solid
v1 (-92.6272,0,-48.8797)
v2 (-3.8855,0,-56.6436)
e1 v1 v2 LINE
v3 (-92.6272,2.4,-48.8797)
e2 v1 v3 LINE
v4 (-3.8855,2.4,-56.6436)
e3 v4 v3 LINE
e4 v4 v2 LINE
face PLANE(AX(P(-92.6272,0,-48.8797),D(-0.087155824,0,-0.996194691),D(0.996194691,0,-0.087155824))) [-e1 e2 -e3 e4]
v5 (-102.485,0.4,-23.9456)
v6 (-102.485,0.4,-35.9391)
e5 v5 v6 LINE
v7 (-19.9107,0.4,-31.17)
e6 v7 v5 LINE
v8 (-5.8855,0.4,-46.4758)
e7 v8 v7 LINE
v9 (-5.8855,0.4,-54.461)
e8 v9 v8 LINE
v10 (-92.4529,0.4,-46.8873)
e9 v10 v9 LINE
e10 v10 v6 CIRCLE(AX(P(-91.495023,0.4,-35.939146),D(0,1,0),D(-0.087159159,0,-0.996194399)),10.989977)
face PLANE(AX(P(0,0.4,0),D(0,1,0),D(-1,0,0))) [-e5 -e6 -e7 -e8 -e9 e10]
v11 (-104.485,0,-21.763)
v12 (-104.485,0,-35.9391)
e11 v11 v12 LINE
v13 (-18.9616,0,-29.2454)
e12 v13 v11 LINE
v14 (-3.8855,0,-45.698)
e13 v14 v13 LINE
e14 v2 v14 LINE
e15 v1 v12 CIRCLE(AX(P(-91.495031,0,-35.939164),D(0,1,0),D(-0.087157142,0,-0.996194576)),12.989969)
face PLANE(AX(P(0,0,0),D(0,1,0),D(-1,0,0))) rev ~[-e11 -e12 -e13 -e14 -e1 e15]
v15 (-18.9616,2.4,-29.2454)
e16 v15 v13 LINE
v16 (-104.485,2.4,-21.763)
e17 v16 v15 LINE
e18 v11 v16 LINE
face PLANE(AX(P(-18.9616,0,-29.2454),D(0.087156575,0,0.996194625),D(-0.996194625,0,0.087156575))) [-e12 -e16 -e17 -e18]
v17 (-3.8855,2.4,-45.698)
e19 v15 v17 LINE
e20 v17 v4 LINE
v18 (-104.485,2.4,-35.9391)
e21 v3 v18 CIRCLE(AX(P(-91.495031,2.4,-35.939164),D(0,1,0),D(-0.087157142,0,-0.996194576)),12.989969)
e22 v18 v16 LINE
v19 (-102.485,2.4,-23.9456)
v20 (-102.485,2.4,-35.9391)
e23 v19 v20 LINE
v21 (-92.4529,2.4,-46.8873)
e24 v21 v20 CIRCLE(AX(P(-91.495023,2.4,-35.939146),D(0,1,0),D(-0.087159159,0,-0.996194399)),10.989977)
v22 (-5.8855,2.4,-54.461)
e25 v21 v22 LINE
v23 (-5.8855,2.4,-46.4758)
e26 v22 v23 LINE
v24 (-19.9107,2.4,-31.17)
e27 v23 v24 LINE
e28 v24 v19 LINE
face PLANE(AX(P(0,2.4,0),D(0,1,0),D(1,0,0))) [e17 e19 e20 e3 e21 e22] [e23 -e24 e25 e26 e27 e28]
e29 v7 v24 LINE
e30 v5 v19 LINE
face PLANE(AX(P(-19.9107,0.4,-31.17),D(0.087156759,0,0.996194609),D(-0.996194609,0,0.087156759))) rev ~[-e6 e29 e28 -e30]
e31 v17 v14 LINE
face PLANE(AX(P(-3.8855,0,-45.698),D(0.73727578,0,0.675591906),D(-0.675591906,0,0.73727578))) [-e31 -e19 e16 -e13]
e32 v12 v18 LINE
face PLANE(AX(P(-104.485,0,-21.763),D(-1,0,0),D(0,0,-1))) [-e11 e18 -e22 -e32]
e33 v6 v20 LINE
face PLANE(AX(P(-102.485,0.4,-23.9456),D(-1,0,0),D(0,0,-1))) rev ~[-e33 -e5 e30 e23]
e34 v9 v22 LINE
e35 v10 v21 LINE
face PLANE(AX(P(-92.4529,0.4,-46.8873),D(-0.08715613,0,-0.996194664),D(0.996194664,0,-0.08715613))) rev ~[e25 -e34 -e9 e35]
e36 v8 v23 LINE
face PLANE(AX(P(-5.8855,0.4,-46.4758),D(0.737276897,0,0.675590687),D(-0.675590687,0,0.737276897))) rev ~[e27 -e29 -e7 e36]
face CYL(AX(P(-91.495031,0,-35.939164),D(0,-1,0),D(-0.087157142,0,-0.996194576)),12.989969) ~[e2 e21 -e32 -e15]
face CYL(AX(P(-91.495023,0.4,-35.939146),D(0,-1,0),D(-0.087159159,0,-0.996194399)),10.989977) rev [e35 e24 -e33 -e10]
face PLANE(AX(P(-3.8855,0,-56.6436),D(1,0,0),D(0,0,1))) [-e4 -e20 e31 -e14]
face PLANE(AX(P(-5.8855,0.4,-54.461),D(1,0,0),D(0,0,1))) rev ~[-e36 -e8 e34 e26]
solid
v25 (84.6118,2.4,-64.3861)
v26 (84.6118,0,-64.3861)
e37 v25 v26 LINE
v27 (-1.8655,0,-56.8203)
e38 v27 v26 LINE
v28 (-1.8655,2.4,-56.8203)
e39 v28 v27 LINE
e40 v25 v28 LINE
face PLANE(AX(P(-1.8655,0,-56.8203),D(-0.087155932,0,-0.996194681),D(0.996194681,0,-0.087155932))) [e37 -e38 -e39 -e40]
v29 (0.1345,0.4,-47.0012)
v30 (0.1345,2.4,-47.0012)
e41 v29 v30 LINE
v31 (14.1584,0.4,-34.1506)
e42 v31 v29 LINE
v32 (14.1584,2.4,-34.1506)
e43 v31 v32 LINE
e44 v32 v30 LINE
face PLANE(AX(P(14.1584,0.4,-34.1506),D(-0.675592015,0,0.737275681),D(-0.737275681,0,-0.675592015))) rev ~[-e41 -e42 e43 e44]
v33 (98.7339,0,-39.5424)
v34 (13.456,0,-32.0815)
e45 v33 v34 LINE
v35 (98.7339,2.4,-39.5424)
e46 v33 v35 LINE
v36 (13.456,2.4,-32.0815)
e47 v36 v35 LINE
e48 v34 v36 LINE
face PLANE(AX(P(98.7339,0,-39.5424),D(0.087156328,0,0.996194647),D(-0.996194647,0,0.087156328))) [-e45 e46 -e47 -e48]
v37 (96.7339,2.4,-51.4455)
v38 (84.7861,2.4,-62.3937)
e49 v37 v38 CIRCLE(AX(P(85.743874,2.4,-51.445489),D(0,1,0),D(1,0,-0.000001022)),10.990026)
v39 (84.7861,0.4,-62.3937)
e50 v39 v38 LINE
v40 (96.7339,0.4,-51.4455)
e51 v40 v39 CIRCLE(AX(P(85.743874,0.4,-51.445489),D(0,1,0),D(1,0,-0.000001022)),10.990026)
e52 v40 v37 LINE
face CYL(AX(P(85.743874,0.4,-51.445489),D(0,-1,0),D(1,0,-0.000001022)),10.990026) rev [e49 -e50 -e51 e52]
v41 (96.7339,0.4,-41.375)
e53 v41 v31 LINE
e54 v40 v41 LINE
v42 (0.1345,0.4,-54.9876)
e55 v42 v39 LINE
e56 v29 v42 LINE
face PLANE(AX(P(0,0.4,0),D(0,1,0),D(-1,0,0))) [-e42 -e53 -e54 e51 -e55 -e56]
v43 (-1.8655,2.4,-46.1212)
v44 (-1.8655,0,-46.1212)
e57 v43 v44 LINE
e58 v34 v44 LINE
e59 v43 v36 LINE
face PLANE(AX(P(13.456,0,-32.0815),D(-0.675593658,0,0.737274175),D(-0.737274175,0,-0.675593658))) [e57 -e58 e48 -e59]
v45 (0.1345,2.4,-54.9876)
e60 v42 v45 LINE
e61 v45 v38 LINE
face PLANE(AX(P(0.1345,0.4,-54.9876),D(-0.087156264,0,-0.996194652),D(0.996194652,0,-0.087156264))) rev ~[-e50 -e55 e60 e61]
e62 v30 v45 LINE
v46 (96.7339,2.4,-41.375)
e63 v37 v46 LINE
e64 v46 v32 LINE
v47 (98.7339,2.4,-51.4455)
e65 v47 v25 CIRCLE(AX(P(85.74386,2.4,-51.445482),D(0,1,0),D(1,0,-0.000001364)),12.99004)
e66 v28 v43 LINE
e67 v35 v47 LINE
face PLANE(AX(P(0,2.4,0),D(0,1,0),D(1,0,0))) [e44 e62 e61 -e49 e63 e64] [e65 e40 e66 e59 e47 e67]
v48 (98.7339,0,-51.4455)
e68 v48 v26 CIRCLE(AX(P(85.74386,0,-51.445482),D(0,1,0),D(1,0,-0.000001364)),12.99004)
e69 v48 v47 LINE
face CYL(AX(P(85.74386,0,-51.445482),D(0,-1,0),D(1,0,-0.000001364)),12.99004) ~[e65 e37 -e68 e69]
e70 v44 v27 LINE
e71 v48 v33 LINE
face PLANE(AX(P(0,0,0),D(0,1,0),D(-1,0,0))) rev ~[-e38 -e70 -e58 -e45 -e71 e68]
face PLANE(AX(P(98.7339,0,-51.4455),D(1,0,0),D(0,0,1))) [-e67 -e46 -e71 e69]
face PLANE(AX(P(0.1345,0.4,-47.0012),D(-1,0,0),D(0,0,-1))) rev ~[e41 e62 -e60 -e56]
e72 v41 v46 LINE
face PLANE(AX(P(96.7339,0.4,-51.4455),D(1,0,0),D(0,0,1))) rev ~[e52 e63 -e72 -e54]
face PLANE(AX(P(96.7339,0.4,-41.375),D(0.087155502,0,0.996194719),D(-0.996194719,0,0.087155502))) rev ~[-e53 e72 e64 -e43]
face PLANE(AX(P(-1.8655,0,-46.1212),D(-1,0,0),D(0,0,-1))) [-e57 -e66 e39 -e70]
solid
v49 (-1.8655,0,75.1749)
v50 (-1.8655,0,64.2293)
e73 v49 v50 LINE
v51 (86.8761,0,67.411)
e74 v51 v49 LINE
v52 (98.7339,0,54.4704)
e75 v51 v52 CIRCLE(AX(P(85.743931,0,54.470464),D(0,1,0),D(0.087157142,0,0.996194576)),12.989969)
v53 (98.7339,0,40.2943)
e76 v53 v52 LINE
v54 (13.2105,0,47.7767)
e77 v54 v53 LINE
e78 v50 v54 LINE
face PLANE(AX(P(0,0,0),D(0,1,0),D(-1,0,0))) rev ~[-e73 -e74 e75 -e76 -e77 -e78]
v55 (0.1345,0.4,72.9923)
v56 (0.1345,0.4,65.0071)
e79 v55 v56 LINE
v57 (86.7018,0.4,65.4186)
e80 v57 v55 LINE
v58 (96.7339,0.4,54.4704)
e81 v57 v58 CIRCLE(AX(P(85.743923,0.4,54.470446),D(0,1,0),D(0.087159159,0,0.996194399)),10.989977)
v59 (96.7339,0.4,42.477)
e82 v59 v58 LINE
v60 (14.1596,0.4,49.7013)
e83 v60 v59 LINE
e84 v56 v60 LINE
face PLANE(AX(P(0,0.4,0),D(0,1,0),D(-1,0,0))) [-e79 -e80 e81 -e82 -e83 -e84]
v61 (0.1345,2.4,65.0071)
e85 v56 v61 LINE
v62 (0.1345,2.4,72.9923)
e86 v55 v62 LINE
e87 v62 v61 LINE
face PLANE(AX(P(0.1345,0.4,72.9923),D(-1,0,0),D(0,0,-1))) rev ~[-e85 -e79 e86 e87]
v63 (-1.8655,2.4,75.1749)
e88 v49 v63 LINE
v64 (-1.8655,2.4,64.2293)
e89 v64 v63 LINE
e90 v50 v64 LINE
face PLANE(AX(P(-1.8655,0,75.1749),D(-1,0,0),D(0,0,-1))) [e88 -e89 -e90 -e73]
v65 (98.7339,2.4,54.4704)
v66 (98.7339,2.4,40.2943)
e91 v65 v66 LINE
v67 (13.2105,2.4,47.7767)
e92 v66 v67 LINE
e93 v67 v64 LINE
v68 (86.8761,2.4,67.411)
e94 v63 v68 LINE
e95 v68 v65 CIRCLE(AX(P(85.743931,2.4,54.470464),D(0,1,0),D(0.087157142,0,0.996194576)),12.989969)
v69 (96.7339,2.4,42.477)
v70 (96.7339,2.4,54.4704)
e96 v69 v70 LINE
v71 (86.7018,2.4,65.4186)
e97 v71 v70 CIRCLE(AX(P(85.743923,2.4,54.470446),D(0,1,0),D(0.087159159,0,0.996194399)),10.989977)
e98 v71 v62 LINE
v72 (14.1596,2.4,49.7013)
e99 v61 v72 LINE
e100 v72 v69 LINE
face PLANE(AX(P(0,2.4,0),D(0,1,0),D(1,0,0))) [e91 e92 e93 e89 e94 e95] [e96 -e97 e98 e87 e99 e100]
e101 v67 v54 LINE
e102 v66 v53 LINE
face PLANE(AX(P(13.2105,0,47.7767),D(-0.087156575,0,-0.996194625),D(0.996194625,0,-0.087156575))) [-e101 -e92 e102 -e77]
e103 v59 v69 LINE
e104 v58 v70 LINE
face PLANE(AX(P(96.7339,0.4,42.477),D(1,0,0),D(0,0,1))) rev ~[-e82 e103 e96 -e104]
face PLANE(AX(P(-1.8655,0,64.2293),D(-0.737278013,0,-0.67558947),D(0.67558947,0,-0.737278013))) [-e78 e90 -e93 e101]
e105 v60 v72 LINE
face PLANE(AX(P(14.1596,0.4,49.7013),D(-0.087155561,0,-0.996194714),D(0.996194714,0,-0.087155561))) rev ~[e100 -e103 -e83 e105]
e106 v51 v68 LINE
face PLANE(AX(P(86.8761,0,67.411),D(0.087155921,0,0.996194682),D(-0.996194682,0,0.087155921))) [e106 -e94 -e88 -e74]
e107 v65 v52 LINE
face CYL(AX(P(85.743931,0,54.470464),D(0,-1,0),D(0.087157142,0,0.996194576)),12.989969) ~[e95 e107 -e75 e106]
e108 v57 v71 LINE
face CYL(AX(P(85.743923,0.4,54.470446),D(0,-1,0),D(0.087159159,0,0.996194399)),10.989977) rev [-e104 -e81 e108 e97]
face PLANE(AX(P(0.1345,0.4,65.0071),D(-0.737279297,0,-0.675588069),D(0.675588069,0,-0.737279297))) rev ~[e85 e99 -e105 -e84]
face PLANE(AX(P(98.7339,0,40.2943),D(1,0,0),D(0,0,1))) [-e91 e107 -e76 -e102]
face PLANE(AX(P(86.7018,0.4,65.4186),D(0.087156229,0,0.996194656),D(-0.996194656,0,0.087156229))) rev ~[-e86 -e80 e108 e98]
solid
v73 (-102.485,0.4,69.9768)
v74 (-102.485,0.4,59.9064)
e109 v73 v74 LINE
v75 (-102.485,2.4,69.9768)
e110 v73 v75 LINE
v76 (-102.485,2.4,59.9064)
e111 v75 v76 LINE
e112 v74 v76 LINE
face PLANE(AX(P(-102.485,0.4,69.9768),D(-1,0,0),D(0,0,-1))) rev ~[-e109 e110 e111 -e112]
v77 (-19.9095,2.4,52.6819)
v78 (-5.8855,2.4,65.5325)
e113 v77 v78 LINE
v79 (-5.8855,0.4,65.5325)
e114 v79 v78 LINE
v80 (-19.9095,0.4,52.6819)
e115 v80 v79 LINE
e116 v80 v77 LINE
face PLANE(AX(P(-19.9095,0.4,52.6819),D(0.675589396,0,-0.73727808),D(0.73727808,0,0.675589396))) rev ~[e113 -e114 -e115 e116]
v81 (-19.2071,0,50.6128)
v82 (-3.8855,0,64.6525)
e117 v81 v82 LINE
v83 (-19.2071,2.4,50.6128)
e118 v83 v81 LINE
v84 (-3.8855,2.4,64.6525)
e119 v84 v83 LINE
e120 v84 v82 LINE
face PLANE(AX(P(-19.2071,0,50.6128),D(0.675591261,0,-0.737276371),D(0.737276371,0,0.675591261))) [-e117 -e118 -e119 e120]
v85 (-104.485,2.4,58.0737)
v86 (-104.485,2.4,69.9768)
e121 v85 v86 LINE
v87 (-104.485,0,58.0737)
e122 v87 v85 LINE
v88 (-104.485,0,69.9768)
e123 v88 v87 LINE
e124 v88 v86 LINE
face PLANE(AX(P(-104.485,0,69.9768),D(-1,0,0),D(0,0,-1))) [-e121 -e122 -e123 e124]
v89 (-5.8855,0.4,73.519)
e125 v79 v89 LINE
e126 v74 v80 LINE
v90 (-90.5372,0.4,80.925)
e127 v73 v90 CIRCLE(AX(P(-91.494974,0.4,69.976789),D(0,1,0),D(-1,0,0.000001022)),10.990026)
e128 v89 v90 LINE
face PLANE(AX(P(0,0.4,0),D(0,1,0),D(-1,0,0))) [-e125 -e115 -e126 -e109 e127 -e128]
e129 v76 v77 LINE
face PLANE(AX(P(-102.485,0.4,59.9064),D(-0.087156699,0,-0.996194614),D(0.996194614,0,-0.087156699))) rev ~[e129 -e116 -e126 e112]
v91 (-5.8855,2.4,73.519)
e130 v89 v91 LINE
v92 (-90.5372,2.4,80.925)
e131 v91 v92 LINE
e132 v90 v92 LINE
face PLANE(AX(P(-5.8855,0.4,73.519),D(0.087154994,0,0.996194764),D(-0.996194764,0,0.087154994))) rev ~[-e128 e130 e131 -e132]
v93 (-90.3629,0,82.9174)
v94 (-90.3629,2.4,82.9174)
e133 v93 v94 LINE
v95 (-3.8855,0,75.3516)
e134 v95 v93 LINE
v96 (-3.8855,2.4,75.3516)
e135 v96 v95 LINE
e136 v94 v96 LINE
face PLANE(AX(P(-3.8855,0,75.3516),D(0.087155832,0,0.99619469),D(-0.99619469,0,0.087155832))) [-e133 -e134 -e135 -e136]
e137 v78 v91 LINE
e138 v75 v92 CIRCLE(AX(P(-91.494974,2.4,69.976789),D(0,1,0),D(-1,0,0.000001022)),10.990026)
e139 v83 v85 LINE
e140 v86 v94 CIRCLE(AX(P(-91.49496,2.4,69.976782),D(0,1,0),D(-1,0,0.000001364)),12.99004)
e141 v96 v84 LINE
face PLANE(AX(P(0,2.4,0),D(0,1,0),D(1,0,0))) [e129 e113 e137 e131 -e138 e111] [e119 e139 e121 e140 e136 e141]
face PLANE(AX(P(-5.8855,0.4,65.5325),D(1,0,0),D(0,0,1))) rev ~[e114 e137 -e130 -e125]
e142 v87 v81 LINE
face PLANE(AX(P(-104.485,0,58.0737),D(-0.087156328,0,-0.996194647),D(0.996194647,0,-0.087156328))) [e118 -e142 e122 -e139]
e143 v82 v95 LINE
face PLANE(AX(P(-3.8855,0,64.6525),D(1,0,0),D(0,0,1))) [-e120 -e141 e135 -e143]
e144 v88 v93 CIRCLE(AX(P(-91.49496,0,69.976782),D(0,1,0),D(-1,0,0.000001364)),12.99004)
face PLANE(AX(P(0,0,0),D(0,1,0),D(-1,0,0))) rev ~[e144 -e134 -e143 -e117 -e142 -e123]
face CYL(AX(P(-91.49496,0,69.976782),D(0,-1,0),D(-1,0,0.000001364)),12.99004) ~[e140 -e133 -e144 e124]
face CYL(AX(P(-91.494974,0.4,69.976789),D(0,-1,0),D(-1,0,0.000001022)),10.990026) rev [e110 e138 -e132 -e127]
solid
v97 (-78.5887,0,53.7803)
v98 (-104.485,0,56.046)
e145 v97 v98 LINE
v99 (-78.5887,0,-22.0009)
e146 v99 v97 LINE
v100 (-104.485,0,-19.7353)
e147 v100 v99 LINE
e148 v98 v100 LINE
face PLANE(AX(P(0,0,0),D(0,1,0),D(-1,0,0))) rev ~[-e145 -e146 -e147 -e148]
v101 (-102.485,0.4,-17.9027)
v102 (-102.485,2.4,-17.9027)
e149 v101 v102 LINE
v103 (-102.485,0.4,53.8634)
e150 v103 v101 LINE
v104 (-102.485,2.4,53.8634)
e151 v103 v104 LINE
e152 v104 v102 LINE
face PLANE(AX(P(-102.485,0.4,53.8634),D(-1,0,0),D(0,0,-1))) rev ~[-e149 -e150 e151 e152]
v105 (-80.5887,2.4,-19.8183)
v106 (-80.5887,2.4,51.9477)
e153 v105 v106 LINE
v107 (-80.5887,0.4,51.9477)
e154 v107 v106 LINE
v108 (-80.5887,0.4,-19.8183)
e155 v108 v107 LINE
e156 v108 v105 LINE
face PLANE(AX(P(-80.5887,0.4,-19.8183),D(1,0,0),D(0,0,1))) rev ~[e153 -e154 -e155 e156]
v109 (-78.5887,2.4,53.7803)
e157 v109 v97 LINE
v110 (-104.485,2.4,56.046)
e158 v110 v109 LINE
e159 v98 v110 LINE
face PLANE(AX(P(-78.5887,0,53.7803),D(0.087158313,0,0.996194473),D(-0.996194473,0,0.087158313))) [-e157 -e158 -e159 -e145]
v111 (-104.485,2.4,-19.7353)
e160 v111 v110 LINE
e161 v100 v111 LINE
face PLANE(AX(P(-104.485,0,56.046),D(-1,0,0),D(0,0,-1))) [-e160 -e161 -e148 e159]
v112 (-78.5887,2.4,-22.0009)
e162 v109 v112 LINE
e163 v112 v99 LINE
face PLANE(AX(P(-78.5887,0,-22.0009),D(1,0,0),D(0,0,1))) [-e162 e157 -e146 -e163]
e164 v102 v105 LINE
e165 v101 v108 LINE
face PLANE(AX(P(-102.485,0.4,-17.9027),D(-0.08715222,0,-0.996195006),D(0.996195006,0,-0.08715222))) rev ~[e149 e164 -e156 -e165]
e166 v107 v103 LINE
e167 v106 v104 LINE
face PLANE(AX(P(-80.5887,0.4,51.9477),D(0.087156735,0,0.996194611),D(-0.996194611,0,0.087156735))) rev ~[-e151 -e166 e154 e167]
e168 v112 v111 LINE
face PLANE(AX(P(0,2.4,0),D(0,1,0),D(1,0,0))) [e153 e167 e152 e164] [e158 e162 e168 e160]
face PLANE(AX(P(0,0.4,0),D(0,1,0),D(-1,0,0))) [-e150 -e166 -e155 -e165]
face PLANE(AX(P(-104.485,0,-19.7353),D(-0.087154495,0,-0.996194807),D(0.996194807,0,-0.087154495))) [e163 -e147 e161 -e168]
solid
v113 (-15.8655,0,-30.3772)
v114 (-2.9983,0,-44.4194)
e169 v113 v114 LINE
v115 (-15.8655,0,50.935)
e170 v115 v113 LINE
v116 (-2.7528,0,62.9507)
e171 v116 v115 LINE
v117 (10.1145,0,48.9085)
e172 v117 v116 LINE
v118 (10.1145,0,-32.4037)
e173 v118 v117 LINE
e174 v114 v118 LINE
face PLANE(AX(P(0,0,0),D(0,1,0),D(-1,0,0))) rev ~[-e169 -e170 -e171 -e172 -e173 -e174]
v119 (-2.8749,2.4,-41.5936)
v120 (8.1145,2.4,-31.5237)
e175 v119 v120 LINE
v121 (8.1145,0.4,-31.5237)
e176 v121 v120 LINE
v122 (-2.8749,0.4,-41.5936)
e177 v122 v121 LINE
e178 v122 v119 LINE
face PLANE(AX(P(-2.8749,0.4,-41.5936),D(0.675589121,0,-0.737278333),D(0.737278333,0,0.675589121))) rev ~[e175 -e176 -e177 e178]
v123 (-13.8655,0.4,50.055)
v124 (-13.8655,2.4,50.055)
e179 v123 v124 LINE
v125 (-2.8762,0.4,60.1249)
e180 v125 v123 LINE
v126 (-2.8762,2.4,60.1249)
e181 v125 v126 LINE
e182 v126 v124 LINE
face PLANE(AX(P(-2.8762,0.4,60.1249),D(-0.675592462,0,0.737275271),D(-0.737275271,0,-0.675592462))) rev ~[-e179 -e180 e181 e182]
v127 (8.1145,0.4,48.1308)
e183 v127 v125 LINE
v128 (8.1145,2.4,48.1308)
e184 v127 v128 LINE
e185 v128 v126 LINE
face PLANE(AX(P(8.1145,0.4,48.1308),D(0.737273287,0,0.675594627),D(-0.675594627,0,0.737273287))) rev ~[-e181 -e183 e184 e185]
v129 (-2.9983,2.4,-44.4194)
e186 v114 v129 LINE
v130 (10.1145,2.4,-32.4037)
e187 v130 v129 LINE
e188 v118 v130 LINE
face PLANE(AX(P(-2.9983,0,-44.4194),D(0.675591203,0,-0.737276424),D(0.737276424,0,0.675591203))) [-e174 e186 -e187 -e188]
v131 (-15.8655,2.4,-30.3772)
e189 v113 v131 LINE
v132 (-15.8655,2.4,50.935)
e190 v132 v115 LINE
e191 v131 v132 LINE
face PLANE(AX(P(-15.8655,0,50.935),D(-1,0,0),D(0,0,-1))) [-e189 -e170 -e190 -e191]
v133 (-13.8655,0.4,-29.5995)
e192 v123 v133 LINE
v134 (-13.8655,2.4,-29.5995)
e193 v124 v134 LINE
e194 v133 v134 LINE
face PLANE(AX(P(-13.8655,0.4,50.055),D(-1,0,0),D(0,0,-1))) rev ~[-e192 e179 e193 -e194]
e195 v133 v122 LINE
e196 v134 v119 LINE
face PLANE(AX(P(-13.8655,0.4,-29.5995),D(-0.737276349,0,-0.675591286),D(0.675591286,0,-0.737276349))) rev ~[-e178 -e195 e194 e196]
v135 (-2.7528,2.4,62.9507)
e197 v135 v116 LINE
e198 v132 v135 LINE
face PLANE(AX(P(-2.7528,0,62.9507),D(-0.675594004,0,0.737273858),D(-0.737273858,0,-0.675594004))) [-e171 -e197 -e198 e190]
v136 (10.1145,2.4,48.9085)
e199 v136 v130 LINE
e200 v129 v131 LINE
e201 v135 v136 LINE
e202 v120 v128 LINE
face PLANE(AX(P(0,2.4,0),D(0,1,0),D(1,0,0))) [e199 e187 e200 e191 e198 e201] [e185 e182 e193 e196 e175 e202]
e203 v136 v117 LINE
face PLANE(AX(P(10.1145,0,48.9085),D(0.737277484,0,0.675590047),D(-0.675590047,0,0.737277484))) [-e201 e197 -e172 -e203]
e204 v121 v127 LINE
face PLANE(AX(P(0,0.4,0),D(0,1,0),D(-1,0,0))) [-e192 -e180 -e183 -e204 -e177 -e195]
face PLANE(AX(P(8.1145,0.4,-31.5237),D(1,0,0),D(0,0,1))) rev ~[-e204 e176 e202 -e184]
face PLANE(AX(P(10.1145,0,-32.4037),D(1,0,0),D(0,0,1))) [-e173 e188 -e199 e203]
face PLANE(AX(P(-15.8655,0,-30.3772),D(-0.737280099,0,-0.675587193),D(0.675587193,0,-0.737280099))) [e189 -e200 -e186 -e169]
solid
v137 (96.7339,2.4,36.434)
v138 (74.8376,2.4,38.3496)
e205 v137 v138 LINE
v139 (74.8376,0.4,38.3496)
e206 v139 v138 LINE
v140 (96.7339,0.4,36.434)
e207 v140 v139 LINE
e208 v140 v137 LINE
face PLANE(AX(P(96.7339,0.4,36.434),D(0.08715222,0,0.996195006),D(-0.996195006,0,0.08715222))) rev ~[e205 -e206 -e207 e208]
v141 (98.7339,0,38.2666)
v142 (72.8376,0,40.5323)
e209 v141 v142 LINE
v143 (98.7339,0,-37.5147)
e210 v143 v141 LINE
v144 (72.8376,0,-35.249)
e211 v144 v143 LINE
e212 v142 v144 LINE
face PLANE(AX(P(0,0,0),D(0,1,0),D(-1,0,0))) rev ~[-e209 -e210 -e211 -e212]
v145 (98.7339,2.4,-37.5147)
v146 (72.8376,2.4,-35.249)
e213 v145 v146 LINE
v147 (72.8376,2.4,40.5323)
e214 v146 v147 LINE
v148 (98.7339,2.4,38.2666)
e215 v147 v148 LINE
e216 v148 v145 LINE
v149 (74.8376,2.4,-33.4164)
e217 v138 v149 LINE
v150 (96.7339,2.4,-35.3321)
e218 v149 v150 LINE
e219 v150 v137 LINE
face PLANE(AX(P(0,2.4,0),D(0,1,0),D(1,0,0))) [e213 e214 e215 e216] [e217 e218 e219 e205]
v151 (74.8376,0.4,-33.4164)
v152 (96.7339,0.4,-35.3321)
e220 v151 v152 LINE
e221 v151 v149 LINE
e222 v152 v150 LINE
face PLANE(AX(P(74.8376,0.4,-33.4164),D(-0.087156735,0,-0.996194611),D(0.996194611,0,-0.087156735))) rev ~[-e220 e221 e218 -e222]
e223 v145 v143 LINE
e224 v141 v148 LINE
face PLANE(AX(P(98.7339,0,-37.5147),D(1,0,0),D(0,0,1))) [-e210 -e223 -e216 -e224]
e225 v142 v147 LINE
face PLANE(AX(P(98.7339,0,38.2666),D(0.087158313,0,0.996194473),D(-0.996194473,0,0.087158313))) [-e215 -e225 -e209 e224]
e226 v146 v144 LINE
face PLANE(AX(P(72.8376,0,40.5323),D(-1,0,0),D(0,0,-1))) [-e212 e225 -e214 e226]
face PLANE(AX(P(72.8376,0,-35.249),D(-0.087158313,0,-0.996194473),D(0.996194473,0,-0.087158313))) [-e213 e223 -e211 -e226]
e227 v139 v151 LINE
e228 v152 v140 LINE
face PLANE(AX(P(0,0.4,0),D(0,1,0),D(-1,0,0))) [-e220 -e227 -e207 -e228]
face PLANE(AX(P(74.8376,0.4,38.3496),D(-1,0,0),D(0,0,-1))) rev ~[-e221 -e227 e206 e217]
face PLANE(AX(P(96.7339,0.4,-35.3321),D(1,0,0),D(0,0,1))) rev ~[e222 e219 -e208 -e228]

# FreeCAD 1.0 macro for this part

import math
import FreeCAD as App
import Part
import Sketcher

V = App.Vector
Q = App.Units.Quantity

doc = App.newDocument("Part")
body = doc.addObject("PartDesign::Body", "Body")
body.AllowCompound = True

# Sketch on XZ plane
sketch1 = body.newObject("Sketcher::SketchObject", "Sketch")
sketch1.AttachmentSupport = (doc.getObject("XZ_Plane"), [""])
sketch1.MapMode = "FlatFace"
sketch1.addGeometry([
    Part.LineSegment(V(-79, -22, 0), V(-104, -20, 0)),  # 0
    Part.LineSegment(V(-104, -20, 0), V(-104, 56, 0)),  # 1
    Part.LineSegment(V(-104, 56, 0), V(-79, 54, 0)),  # 2
    Part.LineSegment(V(-79, 54, 0), V(-79, -22, 0)),  # 3
    Part.LineSegment(V(-4, -57, 0), V(-93, -49, 0)),  # 4
    Part.ArcOfCircle(Part.Circle(V(-91, -36, 0), V(0, 0, 1), 13), math.radians(180), math.radians(265)),  # 5
    Part.LineSegment(V(-104, -36, 0), V(-104, -22, 0)),  # 6
    Part.LineSegment(V(-104, -22, 0), V(-19, -29, 0)),  # 7
    Part.LineSegment(V(-19, -29, 0), V(-4, -46, 0)),  # 8
    Part.LineSegment(V(-4, -46, 0), V(-4, -57, 0)),  # 9
    Part.LineSegment(V(-2, -46, 0), V(13, -32, 0)),  # 10
    Part.LineSegment(V(13, -32, 0), V(99, -40, 0)),  # 11
    Part.LineSegment(V(99, -40, 0), V(99, -51, 0)),  # 12
    Part.ArcOfCircle(Part.Circle(V(86, -51, 0), V(0, 0, 1), 13), math.radians(-95), math.radians(0)),  # 13
    Part.LineSegment(V(85, -64, 0), V(-2, -57, 0)),  # 14
    Part.LineSegment(V(-2, -57, 0), V(-2, -46, 0)),  # 15
    Part.LineSegment(V(10, 49, 0), V(10, -32, 0)),  # 16
    Part.LineSegment(V(10, -32, 0), V(-3, -44, 0)),  # 17
    Part.LineSegment(V(-3, -44, 0), V(-16, -30, 0)),  # 18
    Part.LineSegment(V(-16, -30, 0), V(-16, 51, 0)),  # 19
    Part.LineSegment(V(-16, 51, 0), V(-3, 63, 0)),  # 20
    Part.LineSegment(V(-3, 63, 0), V(10, 49, 0)),  # 21
    Part.LineSegment(V(-19, 51, 0), V(-104, 58, 0)),  # 22
    Part.LineSegment(V(-104, 58, 0), V(-104, 70, 0)),  # 23
    Part.ArcOfCircle(Part.Circle(V(-91, 70, 0), V(0, 0, 1), 13), math.radians(85), math.radians(180)),  # 24
    Part.LineSegment(V(-90, 83, 0), V(-4, 75, 0)),  # 25
    Part.LineSegment(V(-4, 75, 0), V(-4, 65, 0)),  # 26
    Part.LineSegment(V(-4, 65, 0), V(-19, 51, 0)),  # 27
    Part.LineSegment(V(13, 48, 0), V(-2, 64, 0)),  # 28
    Part.LineSegment(V(-2, 64, 0), V(-2, 75, 0)),  # 29
    Part.LineSegment(V(-2, 75, 0), V(87, 67, 0)),  # 30
    Part.ArcOfCircle(Part.Circle(V(86, 54, 0), V(0, 0, 1), 13), math.radians(0), math.radians(85)),  # 31
    Part.LineSegment(V(99, 54, 0), V(99, 40, 0)),  # 32
    Part.LineSegment(V(99, 40, 0), V(13, 48, 0)),  # 33
    Part.LineSegment(V(73, -35, 0), V(73, 41, 0)),  # 34
    Part.LineSegment(V(73, 41, 0), V(99, 38, 0)),  # 35
    Part.LineSegment(V(99, 38, 0), V(99, -38, 0)),  # 36
    Part.LineSegment(V(99, -38, 0), V(73, -35, 0)),  # 37
], False)
sketch1.addConstraint([
    Sketcher.Constraint("Coincident", 0, 2, 1, 1),
    Sketcher.Constraint("Coincident", 1, 2, 2, 1),
    Sketcher.Constraint("Coincident", 2, 2, 3, 1),
    Sketcher.Constraint("Coincident", 3, 2, 0, 1),
    Sketcher.Constraint("Tangent", 4, 2, 5, 2),
    Sketcher.Constraint("Tangent", 5, 1, 6, 1),
    Sketcher.Constraint("Coincident", 6, 2, 7, 1),
    Sketcher.Constraint("Coincident", 7, 2, 8, 1),
    Sketcher.Constraint("Coincident", 8, 2, 9, 1),
    Sketcher.Constraint("Coincident", 9, 2, 4, 1),
    Sketcher.Constraint("Coincident", 10, 2, 11, 1),
    Sketcher.Constraint("Coincident", 11, 2, 12, 1),
    Sketcher.Constraint("Tangent", 12, 2, 13, 2),
    Sketcher.Constraint("Tangent", 13, 1, 14, 1),
    Sketcher.Constraint("Coincident", 14, 2, 15, 1),
    Sketcher.Constraint("Coincident", 15, 2, 10, 1),
    Sketcher.Constraint("Coincident", 16, 2, 17, 1),
    Sketcher.Constraint("Coincident", 17, 2, 18, 1),
    Sketcher.Constraint("Coincident", 18, 2, 19, 1),
    Sketcher.Constraint("Coincident", 19, 2, 20, 1),
    Sketcher.Constraint("Coincident", 20, 2, 21, 1),
    Sketcher.Constraint("Coincident", 21, 2, 16, 1),
    Sketcher.Constraint("Coincident", 22, 2, 23, 1),
    Sketcher.Constraint("Tangent", 23, 2, 24, 2),
    Sketcher.Constraint("Tangent", 24, 1, 25, 1),
    Sketcher.Constraint("Coincident", 25, 2, 26, 1),
    Sketcher.Constraint("Coincident", 26, 2, 27, 1),
    Sketcher.Constraint("Coincident", 27, 2, 22, 1),
    Sketcher.Constraint("Coincident", 28, 2, 29, 1),
    Sketcher.Constraint("Coincident", 29, 2, 30, 1),
    Sketcher.Constraint("Tangent", 30, 2, 31, 2),
    Sketcher.Constraint("Tangent", 31, 1, 32, 1),
    Sketcher.Constraint("Coincident", 32, 2, 33, 1),
    Sketcher.Constraint("Coincident", 33, 2, 28, 1),
    Sketcher.Constraint("Coincident", 34, 2, 35, 1),
    Sketcher.Constraint("Coincident", 35, 2, 36, 1),
    Sketcher.Constraint("Coincident", 36, 2, 37, 1),
    Sketcher.Constraint("Coincident", 37, 2, 34, 1),
    Sketcher.Constraint("Vertical", 1),
    Sketcher.Constraint("Vertical", 3),
    Sketcher.Constraint("Vertical", 6),
    Sketcher.Constraint("Vertical", 9),
    Sketcher.Constraint("Vertical", 12),
    Sketcher.Constraint("Vertical", 15),
    Sketcher.Constraint("Vertical", 16),
    Sketcher.Constraint("Vertical", 19),
    Sketcher.Constraint("Vertical", 23),
    Sketcher.Constraint("Vertical", 26),
    Sketcher.Constraint("Vertical", 29),
    Sketcher.Constraint("Vertical", 32),
    Sketcher.Constraint("Vertical", 34),
    Sketcher.Constraint("Vertical", 36),
    Sketcher.Constraint("Equal", 5, 13),
    Sketcher.Constraint("Equal", 13, 24),
    Sketcher.Constraint("Equal", 24, 31),
    Sketcher.Constraint("Parallel", 0, 2),
    Sketcher.Constraint("Parallel", 2, 4),
    Sketcher.Constraint("Parallel", 4, 7),
    Sketcher.Constraint("Perpendicular", 8, 10),
    Sketcher.Constraint("Parallel", 7, 11),
    Sketcher.Constraint("Parallel", 11, 14),
    Sketcher.Constraint("Parallel", 10, 17),
    Sketcher.Constraint("Perpendicular", 17, 18),
    Sketcher.Constraint("Perpendicular", 18, 20),
    Sketcher.Constraint("Perpendicular", 20, 21),
    Sketcher.Constraint("Parallel", 14, 22),
    Sketcher.Constraint("Parallel", 22, 25),
    Sketcher.Constraint("Perpendicular", 21, 27),
    Sketcher.Constraint("Perpendicular", 27, 28),
    Sketcher.Constraint("Parallel", 25, 30),
    Sketcher.Constraint("Parallel", 30, 33),
    Sketcher.Constraint("Parallel", 33, 35),
    Sketcher.Constraint("Parallel", 35, 37),
    Sketcher.Constraint("Vertical", 5, 3, 24, 3),
    Sketcher.Constraint("Vertical", 13, 3, 31, 3),
    Sketcher.Constraint("Vertical", 1, 2, 5, 1),
    Sketcher.Constraint("Vertical", 9, 2, 25, 2),
    Sketcher.Constraint("Vertical", 15, 2, 28, 2),
    Sketcher.Constraint("Vertical", 32, 2, 35, 2),
    Sketcher.Constraint("Equal", 16, 19),
    Sketcher.Constraint("Equal", 12, 23),
    Sketcher.Constraint("Equal", 15, 26),
    Sketcher.Constraint("Equal", 9, 29),
    Sketcher.Constraint("Equal", 6, 32),
    Sketcher.Constraint("Equal", 3, 34),
    Sketcher.Constraint("Equal", 11, 22),
    Sketcher.Constraint("Equal", 2, 35),
    Sketcher.Constraint("Angle", 0, Q("175 deg")),
    Sketcher.Constraint("Radius", 5, Q("12.99 mm")),
    Sketcher.Constraint("Angle", 8, Q("-47.4999 deg")),
    Sketcher.Constraint("DistanceX", 8, 2, 16, 2, Q("14 mm")),
    Sketcher.Constraint("DistanceX", 18, 2, 15, 2, Q("14 mm")),
    Sketcher.Constraint("Distance", 7, Q("85.85 mm")),
    Sketcher.Constraint("DistanceY", 6, 1, 6, 2, Q("14.176 mm")),
    Sketcher.Constraint("DistanceY", 12, 2, 12, 1, Q("11.903 mm")),
    Sketcher.Constraint("DistanceY", 15, 1, 15, 2, Q("10.699 mm")),
    Sketcher.Constraint("DistanceY", 2, 2, 31, 3, Q("0.69 mm")),
    Sketcher.Constraint("DistanceY", 4, 2, 2, 2, Q("102.66 mm")),
    Sketcher.Constraint("DistanceX", 9, 2, 14, 2, Q("2.02 mm")),
    Sketcher.Constraint("DistanceY", 9, 2, 16, 2, Q("24.24 mm")),
    Sketcher.Constraint("DistanceY", 10, 2, 21, 2, Q("80.99 mm")),
    Sketcher.Constraint("DistanceY", 19, 2, 29, 2, Q("24.24 mm")),
    Sketcher.Constraint("Distance", 18, Q("19.046 mm")),
    Sketcher.Constraint("DistanceY", 1, 1, 1, 2, Q("75.7813 mm")),
    Sketcher.Constraint("DistanceY", 9, 2, 9, 1, Q("10.9456 mm")),
    Sketcher.Constraint("DistanceX", 5, 3, -1, 1, Q("91.495 mm")),
    Sketcher.Constraint("DistanceY", 5, 3, -1, 1, Q("35.939 mm")),
    Sketcher.Constraint("DistanceY", -1, 1, 1, 2, Q("56.046 mm")),
    Sketcher.Constraint("DistanceY", 37, 2, -1, 1, Q("35.249 mm")),
    Sketcher.Constraint("DistanceY", 5, 3, 24, 3, Q("105.916 mm")),
])
pad1 = body.newObject("PartDesign::Pad", "Pad")
pad1.Profile = sketch1
pad1.Length = 0.4
pad1.Reversed = True

# Sketch on XZ plane
sketch2 = body.newObject("Sketcher::SketchObject", "Sketch001")
sketch2.AttachmentSupport = (doc.getObject("XZ_Plane"), [""])
sketch2.MapMode = "FlatFace"
sketch2.AttachmentOffset = App.Placement(V(0, 0, -0.4), App.Rotation())
sketch2.addGeometry([
    Part.ArcOfCircle(Part.Circle(V(-91, 70, 0), V(0, 0, 1), 13), math.radians(85), math.radians(180)),  # 0
    Part.LineSegment(V(-90, 83, 0), V(-4, 75, 0)),  # 1
    Part.LineSegment(V(-4, 75, 0), V(-4, 65, 0)),  # 2
    Part.LineSegment(V(-4, 65, 0), V(-19, 51, 0)),  # 3
    Part.LineSegment(V(-19, 51, 0), V(-104, 58, 0)),  # 4
    Part.LineSegment(V(-104, 58, 0), V(-104, 70, 0)),  # 5
    Part.LineSegment(V(-102, 70, 0), V(-102, 60, 0)),  # 6
    Part.LineSegment(V(-102, 60, 0), V(-20, 53, 0)),  # 7
    Part.LineSegment(V(-20, 53, 0), V(-6, 66, 0)),  # 8
    Part.LineSegment(V(-6, 66, 0), V(-6, 74, 0)),  # 9
    Part.LineSegment(V(-6, 74, 0), V(-91, 81, 0)),  # 10
    Part.ArcOfCircle(Part.Circle(V(-91, 70, 0), V(0, 0, 1), 11), math.radians(85), math.radians(180)),  # 11
    Part.LineSegment(V(-104, -20, 0), V(-104, 56, 0)),  # 12
    Part.LineSegment(V(-104, 56, 0), V(-79, 54, 0)),  # 13
    Part.LineSegment(V(-79, 54, 0), V(-79, -22, 0)),  # 14
    Part.LineSegment(V(-79, -22, 0), V(-104, -20, 0)),  # 15
    Part.LineSegment(V(-102, -18, 0), V(-81, -20, 0)),  # 16
    Part.LineSegment(V(-81, -20, 0), V(-81, 52, 0)),  # 17
    Part.LineSegment(V(-81, 52, 0), V(-102, 54, 0)),  # 18
    Part.LineSegment(V(-102, 54, 0), V(-102, -18, 0)),  # 19
    Part.LineSegment(V(-4, -57, 0), V(-93, -49, 0)),  # 20
    Part.ArcOfCircle(Part.Circle(V(-91, -36, 0), V(0, 0, 1), 13), math.radians(180), math.radians(265)),  # 21
    Part.LineSegment(V(-104, -36, 0), V(-104, -22, 0)),  # 22
    Part.LineSegment(V(-104, -22, 0), V(-19, -29, 0)),  # 23
    Part.LineSegment(V(-19, -29, 0), V(-4, -46, 0)),  # 24
    Part.LineSegment(V(-4, -46, 0), V(-4, -57, 0)),  # 25
    Part.LineSegment(V(-6, -46, 0), V(-20, -31, 0)),  # 26
    Part.LineSegment(V(-20, -31, 0), V(-102, -24, 0)),  # 27
    Part.LineSegment(V(-102, -24, 0), V(-102, -36, 0)),  # 28
    Part.ArcOfCircle(Part.Circle(V(-91, -36, 0), V(0, 0, 1), 11), math.radians(180), math.radians(265)),  # 29
    Part.LineSegment(V(-92, -47, 0), V(-6, -54, 0)),  # 30
    Part.LineSegment(V(-6, -54, 0), V(-6, -46, 0)),  # 31
    Part.LineSegment(V(10, -32, 0), V(-3, -44, 0)),  # 32
    Part.LineSegment(V(-3, -44, 0), V(-16, -30, 0)),  # 33
    Part.LineSegment(V(-16, -30, 0), V(-16, 51, 0)),  # 34
    Part.LineSegment(V(-16, 51, 0), V(-3, 63, 0)),  # 35
    Part.LineSegment(V(-3, 63, 0), V(10, 49, 0)),  # 36
    Part.LineSegment(V(10, 49, 0), V(10, -32, 0)),  # 37
    Part.LineSegment(V(-3, 60, 0), V(-14, 50, 0)),  # 38
    Part.LineSegment(V(-14, 50, 0), V(-14, -30, 0)),  # 39
    Part.LineSegment(V(-14, -30, 0), V(-3, -42, 0)),  # 40
    Part.LineSegment(V(-3, -42, 0), V(8, -32, 0)),  # 41
    Part.LineSegment(V(8, -32, 0), V(8, 48, 0)),  # 42
    Part.LineSegment(V(8, 48, 0), V(-3, 60, 0)),  # 43
    Part.ArcOfCircle(Part.Circle(V(86, -51, 0), V(0, 0, 1), 13), math.radians(-95), math.radians(0)),  # 44
    Part.LineSegment(V(85, -64, 0), V(-2, -57, 0)),  # 45
    Part.LineSegment(V(-2, -57, 0), V(-2, -46, 0)),  # 46
    Part.LineSegment(V(-2, -46, 0), V(13, -32, 0)),  # 47
    Part.LineSegment(V(13, -32, 0), V(99, -40, 0)),  # 48
    Part.LineSegment(V(99, -40, 0), V(99, -51, 0)),  # 49
    Part.LineSegment(V(97, -51, 0), V(97, -41, 0)),  # 50
    Part.LineSegment(V(97, -41, 0), V(14, -34, 0)),  # 51
    Part.LineSegment(V(14, -34, 0), V(0, -47, 0)),  # 52
    Part.LineSegment(V(0, -47, 0), V(0, -55, 0)),  # 53
    Part.LineSegment(V(0, -55, 0), V(85, -62, 0)),  # 54
    Part.ArcOfCircle(Part.Circle(V(86, -51, 0), V(0, 0, 1), 11), math.radians(-95), math.radians(0)),  # 55
    Part.LineSegment(V(73, 41, 0), V(99, 38, 0)),  # 56
    Part.LineSegment(V(99, 38, 0), V(99, -38, 0)),  # 57
    Part.LineSegment(V(99, -38, 0), V(73, -35, 0)),  # 58
    Part.LineSegment(V(73, -35, 0), V(73, 41, 0)),  # 59
    Part.LineSegment(V(97, 36, 0), V(75, 38, 0)),  # 60
    Part.LineSegment(V(75, 38, 0), V(75, -33, 0)),  # 61
    Part.LineSegment(V(75, -33, 0), V(97, -35, 0)),  # 62
    Part.LineSegment(V(97, -35, 0), V(97, 36, 0)),  # 63
    Part.ArcOfCircle(Part.Circle(V(86, 54, 0), V(0, 0, 1), 13), math.radians(0), math.radians(85)),  # 64
    Part.LineSegment(V(99, 54, 0), V(99, 40, 0)),  # 65
    Part.LineSegment(V(99, 40, 0), V(13, 48, 0)),  # 66
    Part.LineSegment(V(13, 48, 0), V(-2, 64, 0)),  # 67
    Part.LineSegment(V(-2, 64, 0), V(-2, 75, 0)),  # 68
    Part.LineSegment(V(-2, 75, 0), V(87, 67, 0)),  # 69
    Part.LineSegment(V(0, 65, 0), V(14, 50, 0)),  # 70
    Part.LineSegment(V(14, 50, 0), V(97, 42, 0)),  # 71
    Part.LineSegment(V(97, 42, 0), V(97, 54, 0)),  # 72
    Part.ArcOfCircle(Part.Circle(V(86, 54, 0), V(0, 0, 1), 11), math.radians(0), math.radians(85)),  # 73
    Part.LineSegment(V(87, 65, 0), V(0, 73, 0)),  # 74
    Part.LineSegment(V(0, 73, 0), V(0, 65, 0)),  # 75
], False)
sketch2.addConstraint([
    Sketcher.Constraint("Tangent", 0, 1, 1, 1),
    Sketcher.Constraint("Coincident", 1, 2, 2, 1),
    Sketcher.Constraint("Coincident", 2, 2, 3, 1),
    Sketcher.Constraint("Coincident", 3, 2, 4, 1),
    Sketcher.Constraint("Coincident", 4, 2, 5, 1),
    Sketcher.Constraint("Tangent", 5, 2, 0, 2),
    Sketcher.Constraint("Coincident", 6, 2, 7, 1),
    Sketcher.Constraint("Coincident", 7, 2, 8, 1),
    Sketcher.Constraint("Coincident", 8, 2, 9, 1),
    Sketcher.Constraint("Coincident", 9, 2, 10, 1),
    Sketcher.Constraint("Tangent", 10, 2, 11, 1),
    Sketcher.Constraint("Tangent", 11, 2, 6, 1),
    Sketcher.Constraint("Coincident", 12, 2, 13, 1),
    Sketcher.Constraint("Coincident", 13, 2, 14, 1),
    Sketcher.Constraint("Coincident", 14, 2, 15, 1),
    Sketcher.Constraint("Coincident", 15, 2, 12, 1),
    Sketcher.Constraint("Coincident", 16, 2, 17, 1),
    Sketcher.Constraint("Coincident", 17, 2, 18, 1),
    Sketcher.Constraint("Coincident", 18, 2, 19, 1),
    Sketcher.Constraint("Coincident", 19, 2, 16, 1),
    Sketcher.Constraint("Tangent", 20, 2, 21, 2),
    Sketcher.Constraint("Tangent", 21, 1, 22, 1),
    Sketcher.Constraint("Coincident", 22, 2, 23, 1),
    Sketcher.Constraint("Coincident", 23, 2, 24, 1),
    Sketcher.Constraint("Coincident", 24, 2, 25, 1),
    Sketcher.Constraint("Coincident", 25, 2, 20, 1),
    Sketcher.Constraint("Coincident", 26, 2, 27, 1),
    Sketcher.Constraint("Coincident", 27, 2, 28, 1),
    Sketcher.Constraint("Tangent", 28, 2, 29, 1),
    Sketcher.Constraint("Tangent", 29, 2, 30, 1),
    Sketcher.Constraint("Coincident", 30, 2, 31, 1),
    Sketcher.Constraint("Coincident", 31, 2, 26, 1),
    Sketcher.Constraint("Coincident", 32, 2, 33, 1),
    Sketcher.Constraint("Coincident", 33, 2, 34, 1),
    Sketcher.Constraint("Coincident", 34, 2, 35, 1),
    Sketcher.Constraint("Coincident", 35, 2, 36, 1),
    Sketcher.Constraint("Coincident", 36, 2, 37, 1),
    Sketcher.Constraint("Coincident", 37, 2, 32, 1),
    Sketcher.Constraint("Coincident", 38, 2, 39, 1),
    Sketcher.Constraint("Coincident", 39, 2, 40, 1),
    Sketcher.Constraint("Coincident", 40, 2, 41, 1),
    Sketcher.Constraint("Coincident", 41, 2, 42, 1),
    Sketcher.Constraint("Coincident", 42, 2, 43, 1),
    Sketcher.Constraint("Coincident", 43, 2, 38, 1),
    Sketcher.Constraint("Tangent", 44, 1, 45, 1),
    Sketcher.Constraint("Coincident", 45, 2, 46, 1),
    Sketcher.Constraint("Coincident", 46, 2, 47, 1),
    Sketcher.Constraint("Coincident", 47, 2, 48, 1),
    Sketcher.Constraint("Coincident", 48, 2, 49, 1),
    Sketcher.Constraint("Tangent", 49, 2, 44, 2),
    Sketcher.Constraint("Coincident", 50, 2, 51, 1),
    Sketcher.Constraint("Coincident", 51, 2, 52, 1),
    Sketcher.Constraint("Coincident", 52, 2, 53, 1),
    Sketcher.Constraint("Coincident", 53, 2, 54, 1),
    Sketcher.Constraint("Tangent", 54, 2, 55, 1),
    Sketcher.Constraint("Tangent", 55, 2, 50, 1),
    Sketcher.Constraint("Coincident", 56, 2, 57, 1),
    Sketcher.Constraint("Coincident", 57, 2, 58, 1),
    Sketcher.Constraint("Coincident", 58, 2, 59, 1),
    Sketcher.Constraint("Coincident", 59, 2, 56, 1),
    Sketcher.Constraint("Coincident", 60, 2, 61, 1),
    Sketcher.Constraint("Coincident", 61, 2, 62, 1),
    Sketcher.Constraint("Coincident", 62, 2, 63, 1),
    Sketcher.Constraint("Coincident", 63, 2, 60, 1),
    Sketcher.Constraint("Tangent", 64, 1, 65, 1),
    Sketcher.Constraint("Coincident", 65, 2, 66, 1),
    Sketcher.Constraint("Coincident", 66, 2, 67, 1),
    Sketcher.Constraint("Coincident", 67, 2, 68, 1),
    Sketcher.Constraint("Coincident", 68, 2, 69, 1),
    Sketcher.Constraint("Tangent", 69, 2, 64, 2),
    Sketcher.Constraint("Coincident", 70, 2, 71, 1),
    Sketcher.Constraint("Coincident", 71, 2, 72, 1),
    Sketcher.Constraint("Tangent", 72, 2, 73, 1),
    Sketcher.Constraint("Tangent", 73, 2, 74, 1),
    Sketcher.Constraint("Coincident", 74, 2, 75, 1),
    Sketcher.Constraint("Coincident", 75, 2, 70, 1),
    Sketcher.Constraint("Vertical", 2),
    Sketcher.Constraint("Vertical", 5),
    Sketcher.Constraint("Vertical", 6),
    Sketcher.Constraint("Vertical", 9),
    Sketcher.Constraint("Vertical", 12),
    Sketcher.Constraint("Vertical", 14),
    Sketcher.Constraint("Vertical", 17),
    Sketcher.Constraint("Vertical", 19),
    Sketcher.Constraint("Vertical", 22),
    Sketcher.Constraint("Vertical", 25),
    Sketcher.Constraint("Vertical", 28),
    Sketcher.Constraint("Vertical", 31),
    Sketcher.Constraint("Vertical", 34),
    Sketcher.Constraint("Vertical", 37),
    Sketcher.Constraint("Vertical", 39),
    Sketcher.Constraint("Vertical", 42),
    Sketcher.Constraint("Vertical", 46),
    Sketcher.Constraint("Vertical", 49),
    Sketcher.Constraint("Vertical", 50),
    Sketcher.Constraint("Vertical", 53),
    Sketcher.Constraint("Vertical", 57),
    Sketcher.Constraint("Vertical", 59),
    Sketcher.Constraint("Vertical", 61),
    Sketcher.Constraint("Vertical", 63),
    Sketcher.Constraint("Vertical", 65),
    Sketcher.Constraint("Vertical", 68),
    Sketcher.Constraint("Vertical", 72),
    Sketcher.Constraint("Vertical", 75),
    Sketcher.Constraint("Coincident", 11, 3, 0, 3),
    Sketcher.Constraint("Coincident", 29, 3, 21, 3),
    Sketcher.Constraint("Coincident", 55, 3, 44, 3),
    Sketcher.Constraint("Coincident", 73, 3, 64, 3),
    Sketcher.Constraint("Equal", 0, 21),
    Sketcher.Constraint("Equal", 11, 29),
    Sketcher.Constraint("Equal", 21, 44),
    Sketcher.Constraint("Equal", 29, 55),
    Sketcher.Constraint("Equal", 44, 64),
    Sketcher.Constraint("Equal", 55, 73),
    Sketcher.Constraint("Parallel", 1, 4),
    Sketcher.Constraint("Parallel", 4, 7),
    Sketcher.Constraint("Parallel", 3, 8),
    Sketcher.Constraint("Parallel", 7, 10),
    Sketcher.Constraint("Parallel", 10, 13),
    Sketcher.Constraint("Parallel", 13, 15),
    Sketcher.Constraint("Parallel", 15, 16),
    Sketcher.Constraint("Parallel", 16, 18),
    Sketcher.Constraint("Parallel", 18, 20),
    Sketcher.Constraint("Parallel", 20, 23),
    Sketcher.Constraint("Perpendicular", 8, 24),
    Sketcher.Constraint("Parallel", 24, 26),
    Sketcher.Constraint("Parallel", 23, 27),
    Sketcher.Constraint("Parallel", 27, 30),
    Sketcher.Constraint("Perpendicular", 26, 32),
    Sketcher.Constraint("Perpendicular", 32, 33),
    Sketcher.Constraint("Perpendicular", 33, 35),
    Sketcher.Constraint("Perpendicular", 35, 36),
    Sketcher.Constraint("Perpendicular", 36, 38),
    Sketcher.Constraint("Perpendicular", 38, 40),
    Sketcher.Constraint("Perpendicular", 40, 41),
    Sketcher.Constraint("Perpendicular", 41, 43),
    Sketcher.Constraint("Parallel", 30, 45),
    Sketcher.Constraint("Perpendicular", 43, 47),
    Sketcher.Constraint("Parallel", 45, 48),
    Sketcher.Constraint("Parallel", 48, 51),
    Sketcher.Constraint("Parallel", 47, 52),
    Sketcher.Constraint("Parallel", 51, 54),
    Sketcher.Constraint("Parallel", 54, 56),
    Sketcher.Constraint("Parallel", 56, 58),
    Sketcher.Constraint("Parallel", 58, 60),
    Sketcher.Constraint("Parallel", 60, 62),
    Sketcher.Constraint("Parallel", 62, 66),
    Sketcher.Constraint("Perpendicular", 52, 67),
    Sketcher.Constraint("Parallel", 66, 69),
    Sketcher.Constraint("Parallel", 67, 70),
    Sketcher.Constraint("Parallel", 69, 71),
    Sketcher.Constraint("Parallel", 71, 74),
    Sketcher.Constraint("Vertical", 11, 3, 21, 3),
    Sketcher.Constraint("Vertical", 55, 3, 64, 3),
    Sketcher.Constraint("Vertical", 5, 2, 12, 2),
    Sketcher.Constraint("Vertical", 11, 2, 18, 2),
    Sketcher.Constraint("Vertical", 2, 2, 24, 2),
    Sketcher.Constraint("Vertical", 9, 2, 30, 2),
    Sketcher.Constraint("Vertical", 49, 2, 56, 2),
    Sketcher.Constraint("Vertical", 55, 2, 62, 2),
    Sketcher.Constraint("Vertical", 46, 2, 67, 2),
    Sketcher.Constraint("Vertical", 53, 2, 74, 2),
    Sketcher.Constraint("Equal", 34, 37),
    Sketcher.Constraint("Equal", 39, 42),
    Sketcher.Constraint("Equal", 2, 46),
    Sketcher.Constraint("Equal", 5, 49),
    Sketcher.Constraint("Equal", 6, 50),
    Sketcher.Constraint("Equal", 9, 53),
    Sketcher.Constraint("Equal", 14, 57),
    Sketcher.Constraint("Equal", 19, 61),
    Sketcher.Constraint("Equal", 22, 65),
    Sketcher.Constraint("Equal", 25, 68),
    Sketcher.Constraint("Equal", 28, 72),
    Sketcher.Constraint("Equal", 31, 75),
    Sketcher.Constraint("Equal", 1, 45),
    Sketcher.Constraint("Equal", 7, 51),
    Sketcher.Constraint("Equal", 15, 56),
    Sketcher.Constraint("Equal", 18, 60),
    Sketcher.Constraint("Angle", 1, Q("-5 deg")),
    Sketcher.Constraint("Radius", 0, Q("12.99 mm")),
    Sketcher.Constraint("Radius", 11, Q("10.99 mm")),
    Sketcher.Constraint("Angle", 3, Q("-137.5 deg")),
    Sketcher.Constraint("Distance", 16, Q("21.98 mm")),
    Sketcher.Constraint("Distance", 23, Q("85.85 mm")),
    Sketcher.Constraint("Distance", 26, Q("20.76 mm")),
    Sketcher.Constraint("DistanceY", 2, 2, 2, 1, Q("10.699 mm")),
    Sketcher.Constraint("DistanceY", 5, 1, 5, 2, Q("11.903 mm")),
    Sketcher.Constraint("DistanceY", 17, 1, 17, 2, Q("71.766 mm")),
    Sketcher.Constraint("DistanceY", 22, 1, 22, 2, Q("14.176 mm")),
    Sketcher.Constraint("DistanceY", 26, 2, -1, 1, Q("31.17 mm")),
    Sketcher.Constraint("Distance", 7, Q("82.891 mm")),
    Sketcher.Constraint("Distance", 10, Q("84.975 mm")),
    Sketcher.Constraint("Distance", 33, Q("19.046 mm")),
    Sketcher.Constraint("Distance", 40, Q("16.268 mm")),
    Sketcher.Constraint("DistanceY", 6, 2, 6, 1, Q("10.0704 mm")),
    Sketcher.Constraint("DistanceY", 12, 1, 12, 2, Q("75.7813 mm")),
    Sketcher.Constraint("DistanceY", 25, 2, 25, 1, Q("10.9456 mm")),
    Sketcher.Constraint("DistanceY", 28, 2, 28, 1, Q("11.9935 mm")),
    Sketcher.Constraint("DistanceY", 34, 1, 34, 2, Q("81.3122 mm")),
    Sketcher.Constraint("DistanceY", 39, 2, 39, 1, Q("79.6545 mm")),
    Sketcher.Constraint("DistanceX", 0, 3, -1, 1, Q("91.495 mm")),
    Sketcher.Constraint("DistanceX", -1, 1, 44, 3, Q("85.744 mm")),
    Sketcher.Constraint("DistanceY", -1, 1, 7, 2, Q("52.682 mm")),
    Sketcher.Constraint("DistanceY", -1, 1, 12, 2, Q("56.046 mm")),
    Sketcher.Constraint("DistanceY", 14, 2, -1, 1, Q("22.001 mm")),
    Sketcher.Constraint("DistanceY", -1, 1, 34, 2, Q("50.935 mm")),
    Sketcher.Constraint("DistanceY", -1, 1, 38, 2, Q("50.055 mm")),
    Sketcher.Constraint("DistanceX", 40, 2, -1, 1, Q("2.875 mm")),
    Sketcher.Constraint("DistanceY", -1, 1, 43, 2, Q("60.125 mm")),
    Sketcher.Constraint("DistanceY", 44, 1, -1, 1, Q("64.386 mm")),
    Sketcher.Constraint("DistanceY", 58, 2, -1, 1, Q("35.249 mm")),
    Sketcher.Constraint("DistanceY", 62, 2, -1, 1, Q("35.332 mm")),
    Sketcher.Constraint("DistanceY", -1, 1, 68, 2, Q("75.175 mm")),
    Sketcher.Constraint("Distance", 32, Q("17.7855 mm")),
    Sketcher.Constraint("DistanceY", 16, 2, -1, 1, Q("19.8183 mm")),
    Sketcher.Constraint("DistanceX", 32, 2, -1, 1, Q("2.9983 mm")),
])
pad2 = body.newObject("PartDesign::Pad", "Pad001")
pad2.Profile = sketch2
pad2.Length = 2
pad2.Reversed = True

doc.recompute()
